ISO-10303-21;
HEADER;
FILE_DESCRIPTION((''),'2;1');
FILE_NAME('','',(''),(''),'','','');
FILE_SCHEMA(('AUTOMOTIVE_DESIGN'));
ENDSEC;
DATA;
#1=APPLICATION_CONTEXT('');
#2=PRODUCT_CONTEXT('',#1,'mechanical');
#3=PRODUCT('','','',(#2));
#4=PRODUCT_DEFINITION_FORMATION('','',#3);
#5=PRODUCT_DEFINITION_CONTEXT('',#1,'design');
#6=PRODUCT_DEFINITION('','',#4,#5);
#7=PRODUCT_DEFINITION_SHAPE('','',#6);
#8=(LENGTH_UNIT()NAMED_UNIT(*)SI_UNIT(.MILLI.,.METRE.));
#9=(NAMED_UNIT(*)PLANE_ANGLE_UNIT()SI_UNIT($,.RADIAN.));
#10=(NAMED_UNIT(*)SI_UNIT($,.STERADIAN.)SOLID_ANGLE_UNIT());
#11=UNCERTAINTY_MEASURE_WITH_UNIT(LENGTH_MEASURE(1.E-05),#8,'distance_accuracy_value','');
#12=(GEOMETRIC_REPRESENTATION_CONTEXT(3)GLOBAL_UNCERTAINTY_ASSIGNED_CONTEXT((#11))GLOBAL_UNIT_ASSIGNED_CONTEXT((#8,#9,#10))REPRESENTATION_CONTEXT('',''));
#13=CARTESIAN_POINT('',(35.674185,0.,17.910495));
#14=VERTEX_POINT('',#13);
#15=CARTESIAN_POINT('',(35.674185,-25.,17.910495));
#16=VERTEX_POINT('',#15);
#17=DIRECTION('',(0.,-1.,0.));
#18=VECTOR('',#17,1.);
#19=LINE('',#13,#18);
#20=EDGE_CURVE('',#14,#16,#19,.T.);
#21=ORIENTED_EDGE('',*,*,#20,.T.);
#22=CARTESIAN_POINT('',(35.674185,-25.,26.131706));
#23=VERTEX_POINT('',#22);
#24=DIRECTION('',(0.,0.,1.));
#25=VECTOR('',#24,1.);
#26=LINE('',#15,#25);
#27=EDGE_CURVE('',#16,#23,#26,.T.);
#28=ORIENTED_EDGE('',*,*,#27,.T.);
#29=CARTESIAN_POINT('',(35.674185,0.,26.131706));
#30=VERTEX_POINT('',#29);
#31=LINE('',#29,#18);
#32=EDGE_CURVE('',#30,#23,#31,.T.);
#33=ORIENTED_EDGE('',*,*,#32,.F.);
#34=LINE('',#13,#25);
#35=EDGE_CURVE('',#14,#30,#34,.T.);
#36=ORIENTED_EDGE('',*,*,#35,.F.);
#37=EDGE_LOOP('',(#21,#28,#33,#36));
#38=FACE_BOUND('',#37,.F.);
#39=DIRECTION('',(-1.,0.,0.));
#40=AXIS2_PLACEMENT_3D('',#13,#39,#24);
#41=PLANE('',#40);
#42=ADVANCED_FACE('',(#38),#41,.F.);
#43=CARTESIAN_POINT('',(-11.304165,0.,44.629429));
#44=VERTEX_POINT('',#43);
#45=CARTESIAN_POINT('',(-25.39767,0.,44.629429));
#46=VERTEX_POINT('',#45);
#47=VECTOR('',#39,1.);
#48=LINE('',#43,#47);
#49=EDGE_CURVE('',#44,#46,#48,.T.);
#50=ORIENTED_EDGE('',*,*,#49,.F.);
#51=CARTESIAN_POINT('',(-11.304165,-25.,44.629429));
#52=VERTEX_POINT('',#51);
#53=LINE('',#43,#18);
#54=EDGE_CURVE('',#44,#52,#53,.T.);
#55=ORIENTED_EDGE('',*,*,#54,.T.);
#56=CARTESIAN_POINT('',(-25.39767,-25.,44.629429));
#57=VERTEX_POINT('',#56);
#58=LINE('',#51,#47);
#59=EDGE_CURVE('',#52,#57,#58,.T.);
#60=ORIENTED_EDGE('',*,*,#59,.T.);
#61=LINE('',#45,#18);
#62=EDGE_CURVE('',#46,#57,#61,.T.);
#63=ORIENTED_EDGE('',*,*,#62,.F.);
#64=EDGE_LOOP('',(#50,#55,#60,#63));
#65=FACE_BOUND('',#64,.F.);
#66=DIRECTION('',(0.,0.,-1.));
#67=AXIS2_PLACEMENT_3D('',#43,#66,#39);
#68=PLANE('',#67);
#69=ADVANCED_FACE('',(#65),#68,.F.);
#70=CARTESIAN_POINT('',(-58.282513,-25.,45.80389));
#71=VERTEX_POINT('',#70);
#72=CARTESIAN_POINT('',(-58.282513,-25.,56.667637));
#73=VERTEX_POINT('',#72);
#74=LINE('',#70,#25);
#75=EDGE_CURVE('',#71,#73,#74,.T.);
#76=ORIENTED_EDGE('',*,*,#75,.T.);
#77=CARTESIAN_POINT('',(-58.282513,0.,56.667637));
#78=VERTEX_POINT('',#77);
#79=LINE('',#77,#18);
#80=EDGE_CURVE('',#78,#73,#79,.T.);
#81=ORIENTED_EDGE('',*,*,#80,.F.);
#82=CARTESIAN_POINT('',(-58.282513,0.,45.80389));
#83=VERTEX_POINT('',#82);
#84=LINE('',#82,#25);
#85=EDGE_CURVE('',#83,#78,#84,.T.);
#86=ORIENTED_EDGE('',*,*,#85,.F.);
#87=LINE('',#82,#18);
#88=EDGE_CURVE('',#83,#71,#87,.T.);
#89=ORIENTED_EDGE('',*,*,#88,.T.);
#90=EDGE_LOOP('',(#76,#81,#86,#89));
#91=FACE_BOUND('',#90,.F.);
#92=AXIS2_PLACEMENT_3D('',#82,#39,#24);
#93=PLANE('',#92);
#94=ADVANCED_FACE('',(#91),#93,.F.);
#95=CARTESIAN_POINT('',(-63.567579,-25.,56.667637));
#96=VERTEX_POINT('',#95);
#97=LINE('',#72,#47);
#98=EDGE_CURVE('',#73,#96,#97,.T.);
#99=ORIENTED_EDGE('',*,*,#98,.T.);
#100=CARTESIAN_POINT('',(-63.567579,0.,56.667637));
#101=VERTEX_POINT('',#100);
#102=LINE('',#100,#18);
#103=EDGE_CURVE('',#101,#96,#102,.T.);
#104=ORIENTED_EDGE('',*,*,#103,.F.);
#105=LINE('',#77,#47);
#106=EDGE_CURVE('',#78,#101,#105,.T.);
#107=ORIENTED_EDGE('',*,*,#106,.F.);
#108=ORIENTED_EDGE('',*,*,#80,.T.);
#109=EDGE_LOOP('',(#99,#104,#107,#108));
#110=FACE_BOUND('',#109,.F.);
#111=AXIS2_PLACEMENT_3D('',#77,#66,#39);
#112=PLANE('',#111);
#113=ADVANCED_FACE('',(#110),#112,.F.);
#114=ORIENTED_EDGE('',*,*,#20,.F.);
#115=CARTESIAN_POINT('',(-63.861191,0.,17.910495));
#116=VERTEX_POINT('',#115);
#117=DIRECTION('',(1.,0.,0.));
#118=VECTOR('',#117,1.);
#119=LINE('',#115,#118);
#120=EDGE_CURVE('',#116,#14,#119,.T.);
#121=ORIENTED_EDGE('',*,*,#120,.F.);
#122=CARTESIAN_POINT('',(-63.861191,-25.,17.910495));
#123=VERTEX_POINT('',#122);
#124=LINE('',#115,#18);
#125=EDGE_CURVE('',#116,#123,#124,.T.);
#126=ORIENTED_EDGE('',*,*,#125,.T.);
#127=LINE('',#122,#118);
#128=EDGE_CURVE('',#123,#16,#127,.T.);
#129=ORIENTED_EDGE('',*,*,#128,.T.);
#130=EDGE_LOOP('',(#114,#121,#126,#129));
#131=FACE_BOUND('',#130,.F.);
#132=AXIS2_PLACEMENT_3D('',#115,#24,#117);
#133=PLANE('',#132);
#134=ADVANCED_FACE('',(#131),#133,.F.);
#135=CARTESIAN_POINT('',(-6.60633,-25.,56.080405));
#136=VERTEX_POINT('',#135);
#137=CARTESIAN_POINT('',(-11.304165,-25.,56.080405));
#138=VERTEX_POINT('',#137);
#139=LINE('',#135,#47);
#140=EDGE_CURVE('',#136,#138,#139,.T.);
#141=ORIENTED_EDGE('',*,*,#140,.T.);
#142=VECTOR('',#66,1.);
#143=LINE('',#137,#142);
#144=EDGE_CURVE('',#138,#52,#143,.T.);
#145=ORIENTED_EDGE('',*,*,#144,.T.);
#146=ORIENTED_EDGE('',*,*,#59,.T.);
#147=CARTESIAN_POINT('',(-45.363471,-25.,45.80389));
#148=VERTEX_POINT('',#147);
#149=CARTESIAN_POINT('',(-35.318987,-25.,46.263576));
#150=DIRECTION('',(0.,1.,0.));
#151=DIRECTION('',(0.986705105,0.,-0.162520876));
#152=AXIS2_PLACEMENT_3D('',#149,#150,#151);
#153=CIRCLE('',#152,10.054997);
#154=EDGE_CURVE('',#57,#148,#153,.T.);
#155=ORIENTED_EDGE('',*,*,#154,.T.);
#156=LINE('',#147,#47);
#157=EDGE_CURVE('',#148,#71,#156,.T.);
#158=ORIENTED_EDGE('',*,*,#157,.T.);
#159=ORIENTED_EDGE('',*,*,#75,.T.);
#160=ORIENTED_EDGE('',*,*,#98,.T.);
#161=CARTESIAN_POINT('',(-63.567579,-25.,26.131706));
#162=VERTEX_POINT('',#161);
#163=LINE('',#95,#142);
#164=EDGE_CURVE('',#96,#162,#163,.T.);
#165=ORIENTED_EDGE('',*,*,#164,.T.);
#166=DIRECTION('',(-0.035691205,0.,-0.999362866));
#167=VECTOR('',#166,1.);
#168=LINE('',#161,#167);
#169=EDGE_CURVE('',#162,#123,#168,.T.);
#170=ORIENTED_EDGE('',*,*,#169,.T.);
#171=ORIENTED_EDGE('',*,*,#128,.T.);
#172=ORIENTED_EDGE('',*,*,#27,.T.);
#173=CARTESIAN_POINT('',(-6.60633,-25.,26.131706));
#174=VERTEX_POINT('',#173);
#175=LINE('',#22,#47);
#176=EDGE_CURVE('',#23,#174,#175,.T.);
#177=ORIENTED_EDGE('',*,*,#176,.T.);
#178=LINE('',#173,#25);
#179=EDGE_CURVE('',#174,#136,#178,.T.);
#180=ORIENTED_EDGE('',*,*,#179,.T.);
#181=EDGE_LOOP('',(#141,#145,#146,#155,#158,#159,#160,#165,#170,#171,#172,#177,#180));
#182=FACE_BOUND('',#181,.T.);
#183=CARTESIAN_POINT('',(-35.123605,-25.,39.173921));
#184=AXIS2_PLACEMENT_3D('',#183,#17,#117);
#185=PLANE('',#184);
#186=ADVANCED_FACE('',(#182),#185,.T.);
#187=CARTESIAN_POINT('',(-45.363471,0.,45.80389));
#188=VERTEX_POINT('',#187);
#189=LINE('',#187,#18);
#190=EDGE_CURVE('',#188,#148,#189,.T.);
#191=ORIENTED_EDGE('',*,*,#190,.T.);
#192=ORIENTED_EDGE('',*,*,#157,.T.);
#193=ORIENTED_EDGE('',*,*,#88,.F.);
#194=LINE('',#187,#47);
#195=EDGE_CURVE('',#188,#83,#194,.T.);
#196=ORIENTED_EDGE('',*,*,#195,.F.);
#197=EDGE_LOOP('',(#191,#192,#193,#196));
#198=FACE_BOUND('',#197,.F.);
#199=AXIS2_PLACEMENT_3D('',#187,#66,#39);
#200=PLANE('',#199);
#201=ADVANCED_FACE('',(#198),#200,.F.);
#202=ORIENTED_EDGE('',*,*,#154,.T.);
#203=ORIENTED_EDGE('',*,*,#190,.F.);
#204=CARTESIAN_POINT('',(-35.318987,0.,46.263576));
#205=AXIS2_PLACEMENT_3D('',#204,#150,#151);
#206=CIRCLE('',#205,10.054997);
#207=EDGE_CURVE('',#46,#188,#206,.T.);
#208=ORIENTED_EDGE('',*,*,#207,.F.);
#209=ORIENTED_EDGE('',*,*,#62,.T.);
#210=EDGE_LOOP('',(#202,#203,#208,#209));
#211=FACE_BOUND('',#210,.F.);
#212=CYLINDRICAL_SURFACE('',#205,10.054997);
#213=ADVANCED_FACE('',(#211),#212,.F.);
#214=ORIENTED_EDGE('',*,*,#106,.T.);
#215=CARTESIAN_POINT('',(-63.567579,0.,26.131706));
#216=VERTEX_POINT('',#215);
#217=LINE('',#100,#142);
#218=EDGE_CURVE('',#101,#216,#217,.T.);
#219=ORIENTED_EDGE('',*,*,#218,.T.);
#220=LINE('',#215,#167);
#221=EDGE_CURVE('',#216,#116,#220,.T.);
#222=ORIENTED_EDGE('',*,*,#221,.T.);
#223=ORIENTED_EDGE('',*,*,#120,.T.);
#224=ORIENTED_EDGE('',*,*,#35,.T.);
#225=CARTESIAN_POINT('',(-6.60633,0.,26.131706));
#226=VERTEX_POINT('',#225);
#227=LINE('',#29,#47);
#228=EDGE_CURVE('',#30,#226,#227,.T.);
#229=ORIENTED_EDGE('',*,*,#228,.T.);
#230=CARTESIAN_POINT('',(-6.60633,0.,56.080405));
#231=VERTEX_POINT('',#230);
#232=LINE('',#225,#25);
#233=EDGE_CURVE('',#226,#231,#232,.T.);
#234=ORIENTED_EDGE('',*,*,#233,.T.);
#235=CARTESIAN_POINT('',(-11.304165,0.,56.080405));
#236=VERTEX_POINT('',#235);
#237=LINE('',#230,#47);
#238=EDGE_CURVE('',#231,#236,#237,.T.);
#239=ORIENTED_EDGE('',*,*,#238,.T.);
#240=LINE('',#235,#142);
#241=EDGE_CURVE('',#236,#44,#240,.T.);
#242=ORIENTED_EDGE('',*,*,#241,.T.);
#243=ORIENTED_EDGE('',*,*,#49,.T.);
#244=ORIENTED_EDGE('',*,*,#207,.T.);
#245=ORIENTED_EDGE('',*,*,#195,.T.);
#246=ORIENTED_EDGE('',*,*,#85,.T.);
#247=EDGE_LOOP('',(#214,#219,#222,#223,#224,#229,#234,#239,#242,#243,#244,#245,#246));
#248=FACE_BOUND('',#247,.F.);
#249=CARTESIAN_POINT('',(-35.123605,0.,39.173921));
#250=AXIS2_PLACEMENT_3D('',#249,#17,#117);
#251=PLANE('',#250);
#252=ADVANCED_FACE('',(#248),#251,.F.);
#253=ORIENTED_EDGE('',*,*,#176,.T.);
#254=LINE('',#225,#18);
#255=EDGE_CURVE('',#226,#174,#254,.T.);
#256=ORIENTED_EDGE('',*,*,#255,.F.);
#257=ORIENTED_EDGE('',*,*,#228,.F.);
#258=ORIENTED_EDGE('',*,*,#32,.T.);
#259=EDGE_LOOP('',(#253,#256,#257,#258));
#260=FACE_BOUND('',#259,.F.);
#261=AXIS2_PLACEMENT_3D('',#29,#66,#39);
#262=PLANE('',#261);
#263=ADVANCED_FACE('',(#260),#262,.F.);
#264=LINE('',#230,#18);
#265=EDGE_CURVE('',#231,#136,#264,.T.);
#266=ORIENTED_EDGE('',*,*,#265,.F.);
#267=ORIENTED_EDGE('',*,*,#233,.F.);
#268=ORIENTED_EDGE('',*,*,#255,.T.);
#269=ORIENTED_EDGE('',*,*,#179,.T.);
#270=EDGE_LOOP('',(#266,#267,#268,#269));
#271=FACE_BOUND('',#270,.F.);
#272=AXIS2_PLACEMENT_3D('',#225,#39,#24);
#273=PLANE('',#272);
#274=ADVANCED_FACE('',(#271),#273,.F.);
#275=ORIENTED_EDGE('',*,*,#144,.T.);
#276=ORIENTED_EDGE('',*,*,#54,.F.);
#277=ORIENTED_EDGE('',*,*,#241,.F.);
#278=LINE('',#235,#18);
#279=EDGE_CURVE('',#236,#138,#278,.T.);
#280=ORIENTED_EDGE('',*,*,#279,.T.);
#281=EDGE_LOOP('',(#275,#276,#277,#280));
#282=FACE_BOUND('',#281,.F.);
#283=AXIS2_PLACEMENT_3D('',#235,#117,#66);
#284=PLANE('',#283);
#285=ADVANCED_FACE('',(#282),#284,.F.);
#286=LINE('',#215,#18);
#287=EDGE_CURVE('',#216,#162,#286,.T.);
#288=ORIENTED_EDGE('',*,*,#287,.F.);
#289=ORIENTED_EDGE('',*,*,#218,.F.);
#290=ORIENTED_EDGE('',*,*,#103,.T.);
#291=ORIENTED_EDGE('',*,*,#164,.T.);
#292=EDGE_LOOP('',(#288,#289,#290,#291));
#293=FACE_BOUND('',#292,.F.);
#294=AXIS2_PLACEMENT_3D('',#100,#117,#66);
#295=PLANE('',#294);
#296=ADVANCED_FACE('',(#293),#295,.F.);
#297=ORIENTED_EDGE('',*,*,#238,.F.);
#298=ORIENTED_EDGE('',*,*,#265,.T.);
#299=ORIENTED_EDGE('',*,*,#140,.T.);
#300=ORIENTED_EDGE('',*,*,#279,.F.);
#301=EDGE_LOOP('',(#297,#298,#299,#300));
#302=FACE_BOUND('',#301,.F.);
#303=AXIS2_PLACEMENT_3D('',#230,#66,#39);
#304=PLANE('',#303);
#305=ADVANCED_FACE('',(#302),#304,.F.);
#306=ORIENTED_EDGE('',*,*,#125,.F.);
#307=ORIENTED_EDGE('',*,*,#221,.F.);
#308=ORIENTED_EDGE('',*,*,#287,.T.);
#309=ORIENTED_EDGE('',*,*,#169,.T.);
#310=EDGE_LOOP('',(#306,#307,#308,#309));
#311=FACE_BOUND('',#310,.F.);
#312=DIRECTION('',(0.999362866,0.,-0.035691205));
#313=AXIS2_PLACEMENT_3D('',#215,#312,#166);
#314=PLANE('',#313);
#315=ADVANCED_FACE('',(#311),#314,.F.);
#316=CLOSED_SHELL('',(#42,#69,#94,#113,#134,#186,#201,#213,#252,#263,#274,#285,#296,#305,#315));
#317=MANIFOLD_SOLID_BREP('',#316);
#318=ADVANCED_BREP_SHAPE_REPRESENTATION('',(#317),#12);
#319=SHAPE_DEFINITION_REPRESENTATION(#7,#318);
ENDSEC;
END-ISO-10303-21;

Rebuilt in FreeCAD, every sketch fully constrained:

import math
import FreeCAD as App
import Part
import Sketcher

V = App.Vector

doc = App.newDocument("Part")
body = doc.addObject("PartDesign::Body", "Body")

sketch1 = doc.addObject("Sketcher::SketchObject", "Sketch")
body.addObject(sketch1)
sketch1.AttachmentSupport = (doc.XZ_Plane, [""])
sketch1.MapMode = "FlatFace"
sketch1.addGeometry([
    Part.LineSegment(V(-58.3, 56.7, 0), V(-63.6, 56.7, 0)),
    Part.LineSegment(V(-63.6, 56.7, 0), V(-63.6, 26.1, 0)),
    Part.LineSegment(V(-63.6, 26.1, 0), V(-63.9, 17.9, 0)),
    Part.LineSegment(V(-63.9, 17.9, 0), V(35.7, 17.9, 0)),
    Part.LineSegment(V(35.7, 17.9, 0), V(35.7, 26.1, 0)),
    Part.LineSegment(V(35.7, 26.1, 0), V(-6.6, 26.1, 0)),
    Part.LineSegment(V(-6.6, 26.1, 0), V(-6.6, 56.1, 0)),
    Part.LineSegment(V(-6.6, 56.1, 0), V(-11.3, 56.1, 0)),
    Part.LineSegment(V(-11.3, 56.1, 0), V(-11.3, 44.6, 0)),
    Part.LineSegment(V(-11.3, 44.6, 0), V(-25.4, 44.6, 0)),
    Part.ArcOfCircle(Part.Circle(V(-35.3, 46.3, 0), V(0, 0, 1), 10.1), math.radians(-177), math.radians(-9)),
    Part.LineSegment(V(-45.4, 45.8, 0), V(-58.3, 45.8, 0)),
    Part.LineSegment(V(-58.3, 45.8, 0), V(-58.3, 56.7, 0)),
], False)
sketch1.addConstraint([
    Sketcher.Constraint("Coincident", 0, 2, 1, 1),
    Sketcher.Constraint("Coincident", 1, 2, 2, 1),
    Sketcher.Constraint("Coincident", 2, 2, 3, 1),
    Sketcher.Constraint("Coincident", 3, 2, 4, 1),
    Sketcher.Constraint("Coincident", 4, 2, 5, 1),
    Sketcher.Constraint("Coincident", 5, 2, 6, 1),
    Sketcher.Constraint("Coincident", 6, 2, 7, 1),
    Sketcher.Constraint("Coincident", 7, 2, 8, 1),
    Sketcher.Constraint("Coincident", 8, 2, 9, 1),
    Sketcher.Constraint("Coincident", 9, 2, 10, 2),
    Sketcher.Constraint("Coincident", 10, 1, 11, 1),
    Sketcher.Constraint("Coincident", 11, 2, 12, 1),
    Sketcher.Constraint("Coincident", 12, 2, 0, 1),
    Sketcher.Constraint("Horizontal", 0),
    Sketcher.Constraint("Vertical", 1),
    Sketcher.Constraint("Horizontal", 3),
    Sketcher.Constraint("Vertical", 4),
    Sketcher.Constraint("Horizontal", 5),
    Sketcher.Constraint("Vertical", 6),
    Sketcher.Constraint("Horizontal", 7),
    Sketcher.Constraint("Vertical", 8),
    Sketcher.Constraint("Horizontal", 9),
    Sketcher.Constraint("Horizontal", 11),
    Sketcher.Constraint("Vertical", 12),
    Sketcher.Constraint("Horizontal", 1, 2, 4, 2),
    Sketcher.Constraint("DistanceY", 6, 1, 6, 2, 29.948699),
    Sketcher.Constraint("Radius", 10, 10.054997),
    Sketcher.Constraint("DistanceY", 1, 2, 1, 1, 30.535931),
    Sketcher.Constraint("DistanceY", 4, 1, 4, 2, 8.221211),
    Sketcher.Constraint("DistanceX", 10, 1, 9, 2, 19.965801),
    Sketcher.Constraint("DistanceX", 0, 2, 0, 1, 5.285066),
    Sketcher.Constraint("DistanceX", 3, 1, 3, 2, 99.535376),
    Sketcher.Constraint("DistanceX", 5, 2, 5, 1, 42.280515),
    Sketcher.Constraint("DistanceX", 7, 2, 7, 1, 4.697835),
    Sketcher.Constraint("DistanceX", 9, 2, 9, 1, 14.093505),
    Sketcher.Constraint("DistanceX", 11, 2, 11, 1, 12.919042),
    Sketcher.Constraint("DistanceY", 8, 2, 8, 1, 11.450976),
    Sketcher.Constraint("DistanceY", 12, 1, 12, 2, 10.863747),
    Sketcher.Constraint("DistanceX", 0, 2, -1, 1, 63.567579),
    Sketcher.Constraint("DistanceY", -1, 1, 8, 2, 44.629429),
])
pad1 = doc.addObject("PartDesign::Pad", "Pad")
body.addObject(pad1)
pad1.Profile = sketch1
pad1.Length = 25

doc.recompute()
